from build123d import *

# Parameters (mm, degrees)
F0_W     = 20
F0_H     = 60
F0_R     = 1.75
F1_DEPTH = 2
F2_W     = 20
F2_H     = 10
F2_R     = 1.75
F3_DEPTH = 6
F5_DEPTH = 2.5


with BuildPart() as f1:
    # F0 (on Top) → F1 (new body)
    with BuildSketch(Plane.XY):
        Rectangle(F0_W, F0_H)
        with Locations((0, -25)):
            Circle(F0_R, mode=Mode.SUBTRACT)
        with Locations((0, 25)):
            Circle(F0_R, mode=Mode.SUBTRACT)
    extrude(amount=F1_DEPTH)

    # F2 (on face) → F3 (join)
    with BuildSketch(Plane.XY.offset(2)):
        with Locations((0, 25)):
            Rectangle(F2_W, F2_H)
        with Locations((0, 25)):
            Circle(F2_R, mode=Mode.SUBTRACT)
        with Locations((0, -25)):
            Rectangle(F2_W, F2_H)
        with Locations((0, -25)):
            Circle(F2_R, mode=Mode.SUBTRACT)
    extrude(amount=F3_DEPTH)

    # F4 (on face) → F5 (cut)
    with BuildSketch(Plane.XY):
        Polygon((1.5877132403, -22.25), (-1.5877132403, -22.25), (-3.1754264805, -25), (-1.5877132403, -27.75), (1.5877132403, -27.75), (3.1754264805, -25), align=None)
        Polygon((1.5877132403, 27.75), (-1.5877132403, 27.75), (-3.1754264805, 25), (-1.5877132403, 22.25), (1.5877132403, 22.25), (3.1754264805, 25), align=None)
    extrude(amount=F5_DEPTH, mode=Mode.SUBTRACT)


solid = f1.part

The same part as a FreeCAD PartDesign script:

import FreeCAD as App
import Part
import Sketcher
Q = App.Units.Quantity

doc = App.newDocument("Part")
params = doc.addObject("Spreadsheet::Sheet", "Params")
for row, (alias, value) in enumerate([
    ("sketch1_diameter", "3.5 mm"),
    ("sketch1_width", "20 mm"),
    ("sketch1_height", "60 mm"),
    ("pad1_length", "2 mm"),
    ("sketch2_diameter", "3.5 mm"),
    ("sketch2_width", "20 mm"),
    ("sketch2_height", "10 mm"),
    ("pad2_length", "6 mm"),
    ("pocket1_length", "2.5 mm"),
], start=1):
    params.set(f"A{row}", alias)
    params.set(f"B{row}", "=" + value)
    params.setAlias(f"B{row}", alias)

body = doc.addObject("PartDesign::Body", "Body")

sketch1 = doc.addObject("Sketcher::SketchObject", "Sketch")
body.addObject(sketch1)
sketch1.AttachmentSupport = (doc.XY_Plane, [""])
sketch1.MapMode = "FlatFace"
sketch1.addGeometry(Part.LineSegment(App.Vector(-10, 30, 0), App.Vector(-10, -30, 0)), False)
sketch1.addGeometry(Part.LineSegment(App.Vector(-10, -30, 0), App.Vector(10, -30, 0)), False)
sketch1.addGeometry(Part.LineSegment(App.Vector(10, -30, 0), App.Vector(10, 30, 0)), False)
sketch1.addGeometry(Part.LineSegment(App.Vector(10, 30, 0), App.Vector(-10, 30, 0)), False)
sketch1.addGeometry(Part.Circle(App.Vector(0, -25, 0), App.Vector(0, 0, 1), 1.8), False)
sketch1.addGeometry(Part.Circle(App.Vector(0, 25, 0), App.Vector(0, 0, 1), 1.8), False)
sketch1.addConstraint(Sketcher.Constraint("Coincident", 0, 2, 1, 1))
sketch1.addConstraint(Sketcher.Constraint("Coincident", 1, 2, 2, 1))
sketch1.addConstraint(Sketcher.Constraint("Coincident", 2, 2, 3, 1))
sketch1.addConstraint(Sketcher.Constraint("Coincident", 3, 2, 0, 1))
sketch1.addConstraint(Sketcher.Constraint("Vertical", 0))
sketch1.addConstraint(Sketcher.Constraint("Horizontal", 1))
sketch1.addConstraint(Sketcher.Constraint("Vertical", 2))
sketch1.addConstraint(Sketcher.Constraint("Horizontal", 3))
sketch1.addConstraint(Sketcher.Constraint("Equal", 4, 5))
sketch1.addConstraint(Sketcher.Constraint("Symmetric", 4, 3, 5, 3, -1, 1))
sketch1.addConstraint(Sketcher.Constraint("Symmetric", 0, 2, 2, 2, -1, 1))
sketch1.addConstraint(Sketcher.Constraint("PointOnObject", 4, 3, -2))
sketch1.addConstraint(Sketcher.Constraint("Diameter", 4, 3.5))
sketch1.addConstraint(Sketcher.Constraint("DistanceX", 1, 1, 1, 2, 20.0))
sketch1.addConstraint(Sketcher.Constraint("DistanceY", 0, 2, 0, 1, 60.0))
sketch1.addConstraint(Sketcher.Constraint("DistanceY", 4, 3, -1, 1, 25.0))
sketch1.setExpression("Constraints[12]", "Params.sketch1_diameter")
sketch1.setExpression("Constraints[13]", "Params.sketch1_width")
sketch1.setExpression("Constraints[14]", "Params.sketch1_height")
pad1 = doc.addObject("PartDesign::Pad", "Pad")
body.addObject(pad1)
pad1.Profile = sketch1
pad1.setExpression("Length", "Params.pad1_length")

sketch2 = doc.addObject("Sketcher::SketchObject", "Sketch001")
body.addObject(sketch2)
sketch2.AttachmentSupport = (doc.XY_Plane, [""])
sketch2.MapMode = "FlatFace"
sketch2.AttachmentOffset = App.Placement(App.Vector(0, 0, 2), App.Rotation())
sketch2.addGeometry(Part.LineSegment(App.Vector(-10, 30, 0), App.Vector(-10, 20, 0)), False)
sketch2.addGeometry(Part.LineSegment(App.Vector(-10, 20, 0), App.Vector(10, 20, 0)), False)
sketch2.addGeometry(Part.LineSegment(App.Vector(10, 20, 0), App.Vector(10, 30, 0)), False)
sketch2.addGeometry(Part.LineSegment(App.Vector(10, 30, 0), App.Vector(-10, 30, 0)), False)
sketch2.addGeometry(Part.Circle(App.Vector(0, 25, 0), App.Vector(0, 0, 1), 1.8), False)
sketch2.addGeometry(Part.LineSegment(App.Vector(-10, -20, 0), App.Vector(-10, -30, 0)), False)
sketch2.addGeometry(Part.LineSegment(App.Vector(-10, -30, 0), App.Vector(10, -30, 0)), False)
sketch2.addGeometry(Part.LineSegment(App.Vector(10, -30, 0), App.Vector(10, -20, 0)), False)
sketch2.addGeometry(Part.LineSegment(App.Vector(10, -20, 0), App.Vector(-10, -20, 0)), False)
sketch2.addGeometry(Part.Circle(App.Vector(0, -25, 0), App.Vector(0, 0, 1), 1.8), False)
sketch2.addConstraint(Sketcher.Constraint("Coincident", 0, 2, 1, 1))
sketch2.addConstraint(Sketcher.Constraint("Coincident", 1, 2, 2, 1))
sketch2.addConstraint(Sketcher.Constraint("Coincident", 2, 2, 3, 1))
sketch2.addConstraint(Sketcher.Constraint("Coincident", 3, 2, 0, 1))
sketch2.addConstraint(Sketcher.Constraint("Coincident", 5, 2, 6, 1))
sketch2.addConstraint(Sketcher.Constraint("Coincident", 6, 2, 7, 1))
sketch2.addConstraint(Sketcher.Constraint("Coincident", 7, 2, 8, 1))
sketch2.addConstraint(Sketcher.Constraint("Coincident", 8, 2, 5, 1))
sketch2.addConstraint(Sketcher.Constraint("Vertical", 0))
sketch2.addConstraint(Sketcher.Constraint("Horizontal", 1))
sketch2.addConstraint(Sketcher.Constraint("Vertical", 2))
sketch2.addConstraint(Sketcher.Constraint("Horizontal", 3))
sketch2.addConstraint(Sketcher.Constraint("Vertical", 5))
sketch2.addConstraint(Sketcher.Constraint("Horizontal", 6))
sketch2.addConstraint(Sketcher.Constraint("Vertical", 7))
sketch2.addConstraint(Sketcher.Constraint("Horizontal", 8))
sketch2.addConstraint(Sketcher.Constraint("Equal", 4, 9))
sketch2.addConstraint(Sketcher.Constraint("Symmetric", 4, 3, 9, 3, -1, 1))
sketch2.addConstraint(Sketcher.Constraint("Symmetric", 2, 2, 5, 2, -1, 1))
sketch2.addConstraint(Sketcher.Constraint("Symmetric", 0, 2, 7, 2, -1, 1))
sketch2.addConstraint(Sketcher.Constraint("PointOnObject", 4, 3, -2))
sketch2.addConstraint(Sketcher.Constraint("Vertical", 3, 2, 5, 2))
sketch2.addConstraint(Sketcher.Constraint("Diameter", 4, 3.5))
sketch2.addConstraint(Sketcher.Constraint("DistanceX", 1, 1, 1, 2, 20.0))
sketch2.addConstraint(Sketcher.Constraint("DistanceY", 0, 2, 0, 1, 10.0))
sketch2.addConstraint(Sketcher.Constraint("DistanceY", -1, 1, 4, 3, 25.0))
sketch2.addConstraint(Sketcher.Constraint("DistanceY", -1, 1, 0, 2, 20.0))
sketch2.setExpression("Constraints[22]", "Params.sketch2_diameter")
sketch2.setExpression("Constraints[23]", "Params.sketch2_width")
sketch2.setExpression("Constraints[24]", "Params.sketch2_height")
pad2 = doc.addObject("PartDesign::Pad", "Pad001")
body.addObject(pad2)
pad2.Profile = sketch2
pad2.setExpression("Length", "Params.pad2_length")

sketch3 = doc.addObject("Sketcher::SketchObject", "Sketch002")
body.addObject(sketch3)
sketch3.AttachmentSupport = (doc.XY_Plane, [""])
sketch3.MapMode = "FlatFace"
sketch3.addGeometry(Part.LineSegment(App.Vector(1.6, -22.2, 0), App.Vector(-1.6, -22.2, 0)), False)
sketch3.addGeometry(Part.LineSegment(App.Vector(-1.6, -22.2, 0), App.Vector(-3.2, -25, 0)), False)
sketch3.addGeometry(Part.LineSegment(App.Vector(-3.2, -25, 0), App.Vector(-1.6, -27.8, 0)), False)
sketch3.addGeometry(Part.LineSegment(App.Vector(-1.6, -27.8, 0), App.Vector(1.6, -27.8, 0)), False)
sketch3.addGeometry(Part.LineSegment(App.Vector(1.6, -27.8, 0), App.Vector(3.2, -25, 0)), False)
sketch3.addGeometry(Part.LineSegment(App.Vector(3.2, -25, 0), App.Vector(1.6, -22.2, 0)), False)
sketch3.addGeometry(Part.LineSegment(App.Vector(1.6, 27.8, 0), App.Vector(-1.6, 27.8, 0)), False)
sketch3.addGeometry(Part.LineSegment(App.Vector(-1.6, 27.8, 0), App.Vector(-3.2, 25, 0)), False)
sketch3.addGeometry(Part.LineSegment(App.Vector(-3.2, 25, 0), App.Vector(-1.6, 22.2, 0)), False)
sketch3.addGeometry(Part.LineSegment(App.Vector(-1.6, 22.2, 0), App.Vector(1.6, 22.2, 0)), False)
sketch3.addGeometry(Part.LineSegment(App.Vector(1.6, 22.2, 0), App.Vector(3.2, 25, 0)), False)
sketch3.addGeometry(Part.LineSegment(App.Vector(3.2, 25, 0), App.Vector(1.6, 27.8, 0)), False)
sketch3.addConstraint(Sketcher.Constraint("Coincident", 0, 2, 1, 1))
sketch3.addConstraint(Sketcher.Constraint("Coincident", 1, 2, 2, 1))
sketch3.addConstraint(Sketcher.Constraint("Coincident", 2, 2, 3, 1))
sketch3.addConstraint(Sketcher.Constraint("Coincident", 3, 2, 4, 1))
sketch3.addConstraint(Sketcher.Constraint("Coincident", 4, 2, 5, 1))
sketch3.addConstraint(Sketcher.Constraint("Coincident", 5, 2, 0, 1))
sketch3.addConstraint(Sketcher.Constraint("Coincident", 6, 2, 7, 1))
sketch3.addConstraint(Sketcher.Constraint("Coincident", 7, 2, 8, 1))
sketch3.addConstraint(Sketcher.Constraint("Coincident", 8, 2, 9, 1))
sketch3.addConstraint(Sketcher.Constraint("Coincident", 9, 2, 10, 1))
sketch3.addConstraint(Sketcher.Constraint("Coincident", 10, 2, 11, 1))
sketch3.addConstraint(Sketcher.Constraint("Coincident", 11, 2, 6, 1))
sketch3.addConstraint(Sketcher.Constraint("Horizontal", 0))
sketch3.addConstraint(Sketcher.Constraint("Horizontal", 3))
sketch3.addConstraint(Sketcher.Constraint("Horizontal", 6))
sketch3.addConstraint(Sketcher.Constraint("Horizontal", 9))
sketch3.addConstraint(Sketcher.Constraint("Symmetric", 3, 2, 6, 2, -1, 1))
sketch3.addConstraint(Sketcher.Constraint("Symmetric", 4, 2, 7, 2, -1, 1))
sketch3.addConstraint(Sketcher.Constraint("Symmetric", 5, 2, 8, 2, -1, 1))
sketch3.addConstraint(Sketcher.Constraint("Symmetric", 1, 2, 10, 2, -1, 1))
sketch3.addConstraint(Sketcher.Constraint("Symmetric", 1, 2, 4, 2, -2))
sketch3.addConstraint(Sketcher.Constraint("Parallel", 1, 4))
sketch3.addConstraint(Sketcher.Constraint("Parallel", 2, 5))
sketch3.addConstraint(Sketcher.Constraint("Parallel", 7, 10))
sketch3.addConstraint(Sketcher.Constraint("Parallel", 8, 11))
sketch3.addConstraint(Sketcher.Constraint("Vertical", 0, 2, 2, 2))
sketch3.addConstraint(Sketcher.Constraint("Vertical", 3, 2, 5, 2))
sketch3.addConstraint(Sketcher.Constraint("Angle", 1, Q("-120 deg")))
sketch3.addConstraint(Sketcher.Constraint("DistanceY", 1, 2, -1, 1, 25.0))
sketch3.addConstraint(Sketcher.Constraint("DistanceY", 2, 2, 0, 2, 5.5))
sketch3.addConstraint(Sketcher.Constraint("DistanceX", 0, 2, 0, 1, 3.175426))
pocket1 = doc.addObject("PartDesign::Pocket", "Pocket")
body.addObject(pocket1)
pocket1.Profile = sketch3
pocket1.setExpression("Length", "Params.pocket1_length")
pocket1.Reversed = True

doc.recompute()
